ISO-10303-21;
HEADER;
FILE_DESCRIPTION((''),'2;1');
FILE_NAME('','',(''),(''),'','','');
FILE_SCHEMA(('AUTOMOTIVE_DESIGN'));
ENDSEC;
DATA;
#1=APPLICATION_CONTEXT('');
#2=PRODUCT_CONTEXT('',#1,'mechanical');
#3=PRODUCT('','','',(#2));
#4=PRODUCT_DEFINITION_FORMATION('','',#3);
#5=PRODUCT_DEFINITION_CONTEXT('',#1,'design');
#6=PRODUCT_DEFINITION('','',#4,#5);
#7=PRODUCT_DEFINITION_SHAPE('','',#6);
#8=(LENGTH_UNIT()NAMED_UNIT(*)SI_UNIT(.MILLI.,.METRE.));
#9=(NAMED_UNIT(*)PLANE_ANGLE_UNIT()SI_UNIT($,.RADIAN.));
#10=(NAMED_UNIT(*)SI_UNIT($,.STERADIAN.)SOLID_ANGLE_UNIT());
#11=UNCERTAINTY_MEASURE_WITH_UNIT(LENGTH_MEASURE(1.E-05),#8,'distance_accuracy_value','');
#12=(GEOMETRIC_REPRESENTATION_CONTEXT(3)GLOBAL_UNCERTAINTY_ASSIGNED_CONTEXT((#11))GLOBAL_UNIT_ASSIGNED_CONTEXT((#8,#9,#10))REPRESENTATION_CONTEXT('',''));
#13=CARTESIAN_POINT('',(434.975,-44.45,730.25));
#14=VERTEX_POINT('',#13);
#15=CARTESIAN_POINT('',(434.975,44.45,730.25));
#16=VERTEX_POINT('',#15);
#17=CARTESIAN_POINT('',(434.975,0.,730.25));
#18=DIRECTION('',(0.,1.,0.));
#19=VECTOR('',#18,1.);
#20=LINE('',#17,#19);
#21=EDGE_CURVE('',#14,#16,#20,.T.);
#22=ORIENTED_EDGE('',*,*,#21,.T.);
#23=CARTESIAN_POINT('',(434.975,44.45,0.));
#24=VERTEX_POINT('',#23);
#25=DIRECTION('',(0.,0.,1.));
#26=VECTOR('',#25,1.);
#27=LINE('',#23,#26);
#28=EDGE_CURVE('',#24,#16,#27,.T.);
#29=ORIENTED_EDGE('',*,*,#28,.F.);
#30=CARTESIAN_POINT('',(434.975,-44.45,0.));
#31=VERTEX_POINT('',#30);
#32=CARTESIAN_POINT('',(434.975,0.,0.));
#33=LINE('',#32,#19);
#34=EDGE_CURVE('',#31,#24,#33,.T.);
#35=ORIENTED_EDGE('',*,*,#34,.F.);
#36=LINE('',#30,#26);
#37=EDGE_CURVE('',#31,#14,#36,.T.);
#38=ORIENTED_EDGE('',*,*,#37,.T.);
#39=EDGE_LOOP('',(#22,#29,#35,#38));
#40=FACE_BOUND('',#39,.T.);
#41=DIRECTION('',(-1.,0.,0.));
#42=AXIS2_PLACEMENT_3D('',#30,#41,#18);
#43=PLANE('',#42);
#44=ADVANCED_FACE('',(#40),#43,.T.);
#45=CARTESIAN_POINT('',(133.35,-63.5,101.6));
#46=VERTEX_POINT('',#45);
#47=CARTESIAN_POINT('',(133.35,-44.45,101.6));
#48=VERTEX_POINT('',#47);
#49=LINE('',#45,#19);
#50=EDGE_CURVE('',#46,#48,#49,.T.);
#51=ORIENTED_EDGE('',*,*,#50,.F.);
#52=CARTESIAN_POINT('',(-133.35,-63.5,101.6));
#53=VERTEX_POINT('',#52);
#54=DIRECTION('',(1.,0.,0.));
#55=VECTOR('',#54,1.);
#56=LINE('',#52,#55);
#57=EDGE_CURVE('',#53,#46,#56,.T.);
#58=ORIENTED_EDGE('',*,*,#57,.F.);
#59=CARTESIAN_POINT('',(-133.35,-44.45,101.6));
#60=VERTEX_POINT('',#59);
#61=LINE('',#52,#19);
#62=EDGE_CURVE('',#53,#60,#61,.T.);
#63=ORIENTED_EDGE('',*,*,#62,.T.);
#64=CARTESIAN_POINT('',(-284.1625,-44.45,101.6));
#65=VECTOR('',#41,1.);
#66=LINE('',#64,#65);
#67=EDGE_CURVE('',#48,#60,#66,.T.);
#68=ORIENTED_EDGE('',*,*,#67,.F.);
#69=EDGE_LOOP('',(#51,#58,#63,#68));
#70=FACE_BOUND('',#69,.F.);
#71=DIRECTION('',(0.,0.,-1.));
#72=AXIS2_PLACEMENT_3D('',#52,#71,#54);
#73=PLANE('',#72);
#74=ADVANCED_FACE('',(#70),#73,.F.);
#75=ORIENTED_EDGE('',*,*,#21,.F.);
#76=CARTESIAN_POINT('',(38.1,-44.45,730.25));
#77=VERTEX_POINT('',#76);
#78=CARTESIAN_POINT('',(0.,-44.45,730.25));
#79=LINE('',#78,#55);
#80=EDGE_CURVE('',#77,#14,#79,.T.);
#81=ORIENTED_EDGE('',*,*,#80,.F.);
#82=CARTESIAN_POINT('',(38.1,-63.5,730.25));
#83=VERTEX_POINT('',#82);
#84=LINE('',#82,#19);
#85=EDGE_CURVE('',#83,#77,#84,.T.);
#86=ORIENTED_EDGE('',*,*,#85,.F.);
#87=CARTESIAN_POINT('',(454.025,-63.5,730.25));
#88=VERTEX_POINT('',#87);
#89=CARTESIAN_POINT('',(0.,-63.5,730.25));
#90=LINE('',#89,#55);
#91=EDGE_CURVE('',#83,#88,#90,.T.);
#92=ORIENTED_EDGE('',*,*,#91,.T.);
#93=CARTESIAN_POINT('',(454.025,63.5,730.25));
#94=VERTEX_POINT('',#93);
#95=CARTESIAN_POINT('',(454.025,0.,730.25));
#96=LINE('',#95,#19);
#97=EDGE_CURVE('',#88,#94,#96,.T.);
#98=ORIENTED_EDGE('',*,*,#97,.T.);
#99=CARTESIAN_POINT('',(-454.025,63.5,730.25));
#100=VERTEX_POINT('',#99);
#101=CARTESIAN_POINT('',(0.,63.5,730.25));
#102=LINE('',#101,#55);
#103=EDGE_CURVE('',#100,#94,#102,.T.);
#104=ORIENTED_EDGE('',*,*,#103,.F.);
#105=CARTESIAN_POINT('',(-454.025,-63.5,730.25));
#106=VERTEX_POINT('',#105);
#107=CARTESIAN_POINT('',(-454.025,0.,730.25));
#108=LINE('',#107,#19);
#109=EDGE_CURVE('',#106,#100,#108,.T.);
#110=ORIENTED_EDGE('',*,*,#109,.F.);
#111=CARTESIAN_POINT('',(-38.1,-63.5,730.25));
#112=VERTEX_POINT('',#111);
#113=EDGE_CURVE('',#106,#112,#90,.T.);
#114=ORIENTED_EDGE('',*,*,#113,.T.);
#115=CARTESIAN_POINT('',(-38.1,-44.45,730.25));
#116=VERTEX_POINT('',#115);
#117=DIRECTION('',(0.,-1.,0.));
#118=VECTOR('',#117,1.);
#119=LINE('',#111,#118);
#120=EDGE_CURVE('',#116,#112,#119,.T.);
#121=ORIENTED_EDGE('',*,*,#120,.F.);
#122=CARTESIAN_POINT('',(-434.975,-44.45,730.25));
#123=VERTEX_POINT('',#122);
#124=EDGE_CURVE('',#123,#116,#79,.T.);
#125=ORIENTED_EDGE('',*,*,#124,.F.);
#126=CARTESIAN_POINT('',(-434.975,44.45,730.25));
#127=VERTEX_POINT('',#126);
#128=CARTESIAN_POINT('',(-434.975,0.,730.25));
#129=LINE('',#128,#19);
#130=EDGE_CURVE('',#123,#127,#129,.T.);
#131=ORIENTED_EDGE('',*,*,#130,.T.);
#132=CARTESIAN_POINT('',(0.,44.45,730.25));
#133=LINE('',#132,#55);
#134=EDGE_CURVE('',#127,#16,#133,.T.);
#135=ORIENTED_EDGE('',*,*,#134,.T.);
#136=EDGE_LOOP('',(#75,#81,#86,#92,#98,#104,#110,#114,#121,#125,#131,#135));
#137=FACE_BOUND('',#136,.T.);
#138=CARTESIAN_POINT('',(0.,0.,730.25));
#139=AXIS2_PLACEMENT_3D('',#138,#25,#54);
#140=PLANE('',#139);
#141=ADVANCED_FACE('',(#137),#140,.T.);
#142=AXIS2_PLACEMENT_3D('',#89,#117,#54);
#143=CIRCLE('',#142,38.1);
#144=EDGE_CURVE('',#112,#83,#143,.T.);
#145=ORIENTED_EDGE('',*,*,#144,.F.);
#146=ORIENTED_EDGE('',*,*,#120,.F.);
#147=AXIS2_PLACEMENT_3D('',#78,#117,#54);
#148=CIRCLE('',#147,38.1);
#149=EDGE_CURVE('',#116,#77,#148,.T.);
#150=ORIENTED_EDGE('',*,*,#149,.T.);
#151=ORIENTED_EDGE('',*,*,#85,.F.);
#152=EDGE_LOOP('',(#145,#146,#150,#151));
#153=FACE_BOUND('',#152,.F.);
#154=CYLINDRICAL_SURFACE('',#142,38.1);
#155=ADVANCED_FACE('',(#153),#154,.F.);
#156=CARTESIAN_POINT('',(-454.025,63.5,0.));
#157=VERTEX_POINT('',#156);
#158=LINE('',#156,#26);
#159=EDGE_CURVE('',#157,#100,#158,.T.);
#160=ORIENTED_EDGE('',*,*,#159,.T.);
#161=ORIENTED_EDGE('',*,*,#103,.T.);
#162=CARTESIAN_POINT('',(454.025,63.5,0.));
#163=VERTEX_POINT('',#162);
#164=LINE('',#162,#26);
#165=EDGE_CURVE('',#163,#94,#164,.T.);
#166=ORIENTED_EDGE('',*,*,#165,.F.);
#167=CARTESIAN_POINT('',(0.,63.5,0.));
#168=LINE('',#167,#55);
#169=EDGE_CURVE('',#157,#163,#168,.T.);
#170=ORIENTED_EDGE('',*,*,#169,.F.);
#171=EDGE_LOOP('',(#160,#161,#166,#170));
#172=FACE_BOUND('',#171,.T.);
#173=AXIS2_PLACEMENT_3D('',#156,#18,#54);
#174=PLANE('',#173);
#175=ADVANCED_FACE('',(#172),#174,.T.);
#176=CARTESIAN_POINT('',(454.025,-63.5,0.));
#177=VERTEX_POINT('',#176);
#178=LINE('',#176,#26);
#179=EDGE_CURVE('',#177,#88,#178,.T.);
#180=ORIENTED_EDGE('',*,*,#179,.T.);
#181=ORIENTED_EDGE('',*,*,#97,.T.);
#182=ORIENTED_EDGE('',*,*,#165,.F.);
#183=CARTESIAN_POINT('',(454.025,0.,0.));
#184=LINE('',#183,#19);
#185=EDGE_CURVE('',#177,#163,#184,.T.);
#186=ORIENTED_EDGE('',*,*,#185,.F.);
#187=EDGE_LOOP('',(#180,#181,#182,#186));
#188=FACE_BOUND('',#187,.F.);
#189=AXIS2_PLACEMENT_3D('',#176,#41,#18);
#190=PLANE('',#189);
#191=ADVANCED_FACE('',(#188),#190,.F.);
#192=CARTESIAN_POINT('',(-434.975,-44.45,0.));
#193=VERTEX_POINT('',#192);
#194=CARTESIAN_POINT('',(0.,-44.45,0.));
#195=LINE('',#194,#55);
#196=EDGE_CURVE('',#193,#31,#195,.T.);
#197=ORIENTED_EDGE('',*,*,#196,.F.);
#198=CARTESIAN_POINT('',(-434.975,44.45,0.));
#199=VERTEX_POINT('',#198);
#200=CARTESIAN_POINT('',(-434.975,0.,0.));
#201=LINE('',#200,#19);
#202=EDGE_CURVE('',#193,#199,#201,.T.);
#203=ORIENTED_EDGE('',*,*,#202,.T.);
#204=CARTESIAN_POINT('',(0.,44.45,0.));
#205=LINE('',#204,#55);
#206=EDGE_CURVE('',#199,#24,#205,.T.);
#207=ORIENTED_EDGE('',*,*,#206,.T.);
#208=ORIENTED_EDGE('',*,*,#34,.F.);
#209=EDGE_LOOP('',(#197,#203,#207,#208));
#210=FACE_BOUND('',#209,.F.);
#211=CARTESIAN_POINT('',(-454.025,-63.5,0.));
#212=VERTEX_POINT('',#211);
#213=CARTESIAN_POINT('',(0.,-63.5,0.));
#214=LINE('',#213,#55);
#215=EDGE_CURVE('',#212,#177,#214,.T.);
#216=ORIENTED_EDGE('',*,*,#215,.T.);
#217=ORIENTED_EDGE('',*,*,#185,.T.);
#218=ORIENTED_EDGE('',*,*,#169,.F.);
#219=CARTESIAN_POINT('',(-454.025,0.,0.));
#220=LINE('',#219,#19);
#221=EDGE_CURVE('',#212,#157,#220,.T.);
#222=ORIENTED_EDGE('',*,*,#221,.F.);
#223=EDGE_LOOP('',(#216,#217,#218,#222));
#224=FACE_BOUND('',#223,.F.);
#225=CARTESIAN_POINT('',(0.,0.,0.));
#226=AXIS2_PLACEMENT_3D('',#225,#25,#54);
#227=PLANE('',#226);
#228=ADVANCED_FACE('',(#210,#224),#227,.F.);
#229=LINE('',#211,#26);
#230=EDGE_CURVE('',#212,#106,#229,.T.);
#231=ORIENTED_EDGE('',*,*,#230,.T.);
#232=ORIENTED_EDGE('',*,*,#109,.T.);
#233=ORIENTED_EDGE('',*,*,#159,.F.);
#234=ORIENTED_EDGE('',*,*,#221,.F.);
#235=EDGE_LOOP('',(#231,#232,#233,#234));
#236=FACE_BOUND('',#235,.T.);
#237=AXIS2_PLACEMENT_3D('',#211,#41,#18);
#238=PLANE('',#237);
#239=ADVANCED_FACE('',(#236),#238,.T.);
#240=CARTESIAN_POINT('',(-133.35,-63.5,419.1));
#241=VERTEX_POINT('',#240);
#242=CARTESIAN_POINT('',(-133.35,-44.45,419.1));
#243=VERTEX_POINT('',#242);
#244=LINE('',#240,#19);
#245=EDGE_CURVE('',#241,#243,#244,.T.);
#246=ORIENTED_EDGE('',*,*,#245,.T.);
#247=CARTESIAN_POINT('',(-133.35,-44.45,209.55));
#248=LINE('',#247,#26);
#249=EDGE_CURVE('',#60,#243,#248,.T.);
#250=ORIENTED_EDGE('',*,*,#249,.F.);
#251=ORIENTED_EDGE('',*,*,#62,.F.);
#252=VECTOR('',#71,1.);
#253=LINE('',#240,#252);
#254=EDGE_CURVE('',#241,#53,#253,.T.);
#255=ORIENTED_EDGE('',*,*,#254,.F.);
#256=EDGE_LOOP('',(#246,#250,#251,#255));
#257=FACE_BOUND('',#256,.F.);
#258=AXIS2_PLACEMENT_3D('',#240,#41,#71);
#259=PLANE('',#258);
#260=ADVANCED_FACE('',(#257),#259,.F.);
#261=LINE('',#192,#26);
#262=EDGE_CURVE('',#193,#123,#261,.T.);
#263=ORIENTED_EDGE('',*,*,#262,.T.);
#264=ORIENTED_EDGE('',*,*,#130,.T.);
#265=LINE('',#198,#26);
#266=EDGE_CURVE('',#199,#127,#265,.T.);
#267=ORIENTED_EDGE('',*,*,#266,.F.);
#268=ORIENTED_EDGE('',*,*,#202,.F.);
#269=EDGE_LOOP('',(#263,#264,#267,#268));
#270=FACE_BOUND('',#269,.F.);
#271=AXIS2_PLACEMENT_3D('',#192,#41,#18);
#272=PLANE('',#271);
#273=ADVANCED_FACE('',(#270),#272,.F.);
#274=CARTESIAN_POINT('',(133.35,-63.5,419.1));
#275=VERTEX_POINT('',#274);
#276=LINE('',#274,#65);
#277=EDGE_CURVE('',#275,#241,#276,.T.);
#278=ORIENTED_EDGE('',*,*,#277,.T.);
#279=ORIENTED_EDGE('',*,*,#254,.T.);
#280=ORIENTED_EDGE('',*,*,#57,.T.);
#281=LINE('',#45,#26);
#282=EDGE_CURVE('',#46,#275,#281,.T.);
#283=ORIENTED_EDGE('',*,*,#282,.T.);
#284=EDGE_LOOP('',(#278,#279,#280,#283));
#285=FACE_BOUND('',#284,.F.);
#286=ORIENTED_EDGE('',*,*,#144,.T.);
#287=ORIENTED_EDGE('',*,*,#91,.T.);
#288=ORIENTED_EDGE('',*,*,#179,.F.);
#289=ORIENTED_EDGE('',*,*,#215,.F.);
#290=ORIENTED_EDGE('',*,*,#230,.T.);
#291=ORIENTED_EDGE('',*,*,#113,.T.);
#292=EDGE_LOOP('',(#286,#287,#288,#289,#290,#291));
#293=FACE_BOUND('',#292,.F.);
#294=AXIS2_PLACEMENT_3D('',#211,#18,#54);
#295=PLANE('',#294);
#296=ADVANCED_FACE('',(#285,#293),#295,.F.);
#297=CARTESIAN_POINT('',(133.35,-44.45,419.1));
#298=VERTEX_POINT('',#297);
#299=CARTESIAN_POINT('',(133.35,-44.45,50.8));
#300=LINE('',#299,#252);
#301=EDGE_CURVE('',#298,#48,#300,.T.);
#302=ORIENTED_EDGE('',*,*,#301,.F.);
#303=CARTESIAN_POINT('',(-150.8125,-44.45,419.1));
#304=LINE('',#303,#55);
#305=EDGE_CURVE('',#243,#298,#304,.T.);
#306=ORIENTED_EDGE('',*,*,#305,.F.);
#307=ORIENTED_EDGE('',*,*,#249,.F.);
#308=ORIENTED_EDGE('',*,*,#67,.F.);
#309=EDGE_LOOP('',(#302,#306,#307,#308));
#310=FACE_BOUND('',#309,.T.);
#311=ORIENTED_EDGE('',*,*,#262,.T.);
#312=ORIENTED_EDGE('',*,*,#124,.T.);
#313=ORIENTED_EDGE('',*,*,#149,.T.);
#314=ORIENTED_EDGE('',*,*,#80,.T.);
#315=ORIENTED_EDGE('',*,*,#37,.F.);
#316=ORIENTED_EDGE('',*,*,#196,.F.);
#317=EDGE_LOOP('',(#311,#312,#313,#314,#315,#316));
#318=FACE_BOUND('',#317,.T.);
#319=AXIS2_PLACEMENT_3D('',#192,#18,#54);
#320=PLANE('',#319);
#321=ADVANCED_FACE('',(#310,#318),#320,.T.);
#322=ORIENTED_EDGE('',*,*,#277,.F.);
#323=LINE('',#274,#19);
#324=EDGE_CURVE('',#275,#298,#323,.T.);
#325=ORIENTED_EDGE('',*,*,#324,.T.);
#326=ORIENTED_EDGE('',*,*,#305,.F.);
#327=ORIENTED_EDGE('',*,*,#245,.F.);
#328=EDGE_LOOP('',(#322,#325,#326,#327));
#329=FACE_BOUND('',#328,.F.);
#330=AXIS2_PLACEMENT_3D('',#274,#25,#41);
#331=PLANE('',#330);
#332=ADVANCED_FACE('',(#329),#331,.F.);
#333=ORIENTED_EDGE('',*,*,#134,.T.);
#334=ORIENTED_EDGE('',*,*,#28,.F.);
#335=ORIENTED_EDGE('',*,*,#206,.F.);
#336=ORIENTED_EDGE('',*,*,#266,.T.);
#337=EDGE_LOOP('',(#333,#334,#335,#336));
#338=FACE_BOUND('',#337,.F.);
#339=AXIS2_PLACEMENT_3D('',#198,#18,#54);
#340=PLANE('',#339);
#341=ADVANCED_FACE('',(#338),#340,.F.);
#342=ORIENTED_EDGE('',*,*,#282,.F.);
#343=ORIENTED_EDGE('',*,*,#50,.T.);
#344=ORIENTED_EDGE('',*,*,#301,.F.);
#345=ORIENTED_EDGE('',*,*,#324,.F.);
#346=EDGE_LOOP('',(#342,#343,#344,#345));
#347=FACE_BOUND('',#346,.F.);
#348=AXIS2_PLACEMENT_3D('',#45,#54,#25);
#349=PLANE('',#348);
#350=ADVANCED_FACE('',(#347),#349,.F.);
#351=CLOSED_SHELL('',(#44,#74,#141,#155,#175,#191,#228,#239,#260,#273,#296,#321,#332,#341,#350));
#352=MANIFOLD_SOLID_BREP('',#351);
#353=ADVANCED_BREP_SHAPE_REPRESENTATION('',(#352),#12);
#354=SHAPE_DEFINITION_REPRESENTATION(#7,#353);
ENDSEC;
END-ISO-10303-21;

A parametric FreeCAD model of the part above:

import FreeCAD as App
import Part
import Sketcher
from FreeCAD import Vector
Q = App.Units.Quantity


def add_polygon(sketch, points):
    """Adds a closed chain of lines whose ends are joined by coincident constraints."""
    first, n = sketch.GeometryCount, len(points)
    for a, b in zip(points, points[1:] + points[:1]):
        sketch.addGeometry(Part.LineSegment(App.Vector(*a, 0), App.Vector(*b, 0)), False)
    for i in range(n):
        sketch.addConstraint(Sketcher.Constraint("Coincident", first + i, 2, first + (i + 1) % n, 1))

doc = App.newDocument("Part")
body = doc.addObject("PartDesign::Body", "Body")

# Sketch on XY plane
sketch1 = body.newObject("Sketcher::SketchObject", "Sketch")
sketch1.AttachmentSupport = (doc.getObject("XY_Plane"), [""])
sketch1.MapMode = "FlatFace"
add_polygon(sketch1, [(-454, 64), (-454, -64), (454, -64), (454, 64)])  # lines 0-3
add_polygon(sketch1, [(435, -44), (-435, -44), (-435, 44), (435, 44)])  # lines 4-7
sketch1.addConstraint([
    Sketcher.Constraint("Vertical", 0),
    Sketcher.Constraint("Horizontal", 1),
    Sketcher.Constraint("Vertical", 2),
    Sketcher.Constraint("Horizontal", 3),
    Sketcher.Constraint("Horizontal", 4),
    Sketcher.Constraint("Vertical", 5),
    Sketcher.Constraint("Horizontal", 6),
    Sketcher.Constraint("Vertical", 7),
    Sketcher.Constraint("Symmetric", 0, 2, 2, 2, -1, 1),
    Sketcher.Constraint("Symmetric", 4, 2, 6, 2, -1, 1),
    Sketcher.Constraint("DistanceY", 0, 2, 0, 1, Q("5 in")),
    Sketcher.Constraint("DistanceY", 5, 1, 5, 2, Q("3.5 in")),
    Sketcher.Constraint("DistanceX", 4, 2, 1, 2, Q("35 in")),
    Sketcher.Constraint("DistanceX", 1, 1, 1, 2, Q("35.75 in")),
])
pad1 = body.newObject("PartDesign::Pad", "Pad")
pad1.Profile = sketch1
pad1.Length = Q("28.75 in")

# Sketch on XZ plane
sketch2 = body.newObject("Sketcher::SketchObject", "Sketch001")
sketch2.AttachmentSupport = (doc.getObject("XZ_Plane"), [""])
sketch2.MapMode = "FlatFace"
sketch2.AttachmentOffset = App.Placement(Vector(0, 0, 2.5 * 25.4), App.Rotation())
add_polygon(sketch2, [(-133, 102), (133, 102), (133, 419), (-133, 419)])  # lines 0-3
sketch2.addConstraint([
    Sketcher.Constraint("Horizontal", 0),
    Sketcher.Constraint("Vertical", 1),
    Sketcher.Constraint("Horizontal", 2),
    Sketcher.Constraint("Vertical", 3),
    Sketcher.Constraint("DistanceX", 0, 1, 0, 2, Q("10.5 in")),
    Sketcher.Constraint("DistanceY", 1, 1, 1, 2, Q("12.5 in")),
    Sketcher.Constraint("DistanceY", -1, 1, 0, 2, Q("4 in")),
    Sketcher.Constraint("DistanceX", -1, 1, 0, 2, Q("5.25 in")),
])
pocket1 = body.newObject("PartDesign::Pocket", "Pocket")
pocket1.Profile = sketch2
pocket1.Length = Q("1 in")

# Sketch on XZ plane
sketch3 = body.newObject("Sketcher::SketchObject", "Sketch002")
sketch3.AttachmentSupport = (doc.getObject("XZ_Plane"), [""])
sketch3.MapMode = "FlatFace"
sketch3.AttachmentOffset = App.Placement(Vector(0, 0, 2.5 * 25.4), App.Rotation())
sketch3.addGeometry(Part.Circle(Vector(0, 730, 0), Vector(0, 0, 1), 38), False)
sketch3.addConstraint([
    Sketcher.Constraint("PointOnObject", 0, 3, -2),
    Sketcher.Constraint("Diameter", 0, Q("3 in")),
    Sketcher.Constraint("DistanceY", -1, 1, 0, 3, Q("28.75 in")),
])
pocket2 = body.newObject("PartDesign::Pocket", "Pocket001")
pocket2.Profile = sketch3
pocket2.Length = Q("1 in")

doc.recompute()
